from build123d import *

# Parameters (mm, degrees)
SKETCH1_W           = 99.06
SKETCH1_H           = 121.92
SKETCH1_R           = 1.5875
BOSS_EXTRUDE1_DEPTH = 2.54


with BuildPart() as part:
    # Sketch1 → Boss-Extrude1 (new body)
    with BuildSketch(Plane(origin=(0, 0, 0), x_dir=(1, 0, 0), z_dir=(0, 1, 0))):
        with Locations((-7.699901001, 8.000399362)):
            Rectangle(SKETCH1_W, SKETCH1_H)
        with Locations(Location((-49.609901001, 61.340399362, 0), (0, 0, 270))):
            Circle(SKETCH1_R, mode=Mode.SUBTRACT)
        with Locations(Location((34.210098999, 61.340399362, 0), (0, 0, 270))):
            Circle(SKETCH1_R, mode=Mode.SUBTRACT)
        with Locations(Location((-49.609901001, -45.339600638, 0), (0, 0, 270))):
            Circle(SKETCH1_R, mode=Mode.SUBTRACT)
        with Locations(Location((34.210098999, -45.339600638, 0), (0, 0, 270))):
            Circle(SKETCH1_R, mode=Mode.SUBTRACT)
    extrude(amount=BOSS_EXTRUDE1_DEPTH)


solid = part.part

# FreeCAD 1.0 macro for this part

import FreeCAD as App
import Part
import Sketcher
Q = App.Units.Quantity

doc = App.newDocument("Part")
body = doc.addObject("PartDesign::Body", "Body")

# Sketch on XZ plane
sketch1 = body.newObject("Sketcher::SketchObject", "Sketch")
sketch1.AttachmentSupport = (doc.getObject("XZ_Plane"), [""])
sketch1.MapMode = "FlatFace"
sketch1.addGeometry([
    Part.LineSegment(App.Vector(-57.2, -69, 0), App.Vector(-57.2, 53, 0)),  # 0
    Part.LineSegment(App.Vector(-57.2, 53, 0), App.Vector(41.8, 53, 0)),  # 1
    Part.LineSegment(App.Vector(41.8, 53, 0), App.Vector(41.8, -69, 0)),  # 2
    Part.LineSegment(App.Vector(41.8, -69, 0), App.Vector(-57.2, -69, 0)),  # 3
    Part.Circle(App.Vector(-49.6, 45.3, 0), App.Vector(0, 0, 1), 1.6),  # 4
    Part.Circle(App.Vector(34.2, 45.3, 0), App.Vector(0, 0, 1), 1.6),  # 5
    Part.Circle(App.Vector(-49.6, -61.3, 0), App.Vector(0, 0, 1), 1.6),  # 6
    Part.Circle(App.Vector(34.2, -61.3, 0), App.Vector(0, 0, 1), 1.6),  # 7
], False)
sketch1.addConstraint([
    Sketcher.Constraint("Coincident", 0, 2, 1, 1),
    Sketcher.Constraint("Coincident", 1, 2, 2, 1),
    Sketcher.Constraint("Coincident", 2, 2, 3, 1),
    Sketcher.Constraint("Coincident", 3, 2, 0, 1),
    Sketcher.Constraint("Vertical", 0),
    Sketcher.Constraint("Horizontal", 1),
    Sketcher.Constraint("Vertical", 2),
    Sketcher.Constraint("Horizontal", 3),
    Sketcher.Constraint("Equal", 4, 5),
    Sketcher.Constraint("Equal", 5, 6),
    Sketcher.Constraint("Equal", 6, 7),
    Sketcher.Constraint("Horizontal", 4, 3, 5, 3),
    Sketcher.Constraint("Horizontal", 6, 3, 7, 3),
    Sketcher.Constraint("Vertical", 4, 3, 6, 3),
    Sketcher.Constraint("Vertical", 5, 3, 7, 3),
    Sketcher.Constraint("Diameter", 4, Q("0.125 in")),
    Sketcher.Constraint("DistanceX", 1, 1, 1, 2, Q("3.9 in")),
    Sketcher.Constraint("DistanceY", 0, 1, 0, 2, Q("4.8 in")),
    Sketcher.Constraint("DistanceX", 4, 3, 5, 3, Q("3.3 in")),
    Sketcher.Constraint("DistanceY", 6, 3, 4, 3, Q("4.2 in")),
    Sketcher.Constraint("DistanceX", 0, 2, 4, 3, Q("0.3 in")),
    Sketcher.Constraint("DistanceY", 4, 3, 0, 2, Q("0.3 in")),
    Sketcher.Constraint("DistanceX", 4, 3, -1, 1, 49.609901),
    Sketcher.Constraint("DistanceY", -1, 1, 4, 3, 45.339601),
])
pad1 = body.newObject("PartDesign::Pad", "Pad")
pad1.Profile = sketch1
pad1.Length = Q("0.1 in")
pad1.Reversed = True

doc.recompute()
